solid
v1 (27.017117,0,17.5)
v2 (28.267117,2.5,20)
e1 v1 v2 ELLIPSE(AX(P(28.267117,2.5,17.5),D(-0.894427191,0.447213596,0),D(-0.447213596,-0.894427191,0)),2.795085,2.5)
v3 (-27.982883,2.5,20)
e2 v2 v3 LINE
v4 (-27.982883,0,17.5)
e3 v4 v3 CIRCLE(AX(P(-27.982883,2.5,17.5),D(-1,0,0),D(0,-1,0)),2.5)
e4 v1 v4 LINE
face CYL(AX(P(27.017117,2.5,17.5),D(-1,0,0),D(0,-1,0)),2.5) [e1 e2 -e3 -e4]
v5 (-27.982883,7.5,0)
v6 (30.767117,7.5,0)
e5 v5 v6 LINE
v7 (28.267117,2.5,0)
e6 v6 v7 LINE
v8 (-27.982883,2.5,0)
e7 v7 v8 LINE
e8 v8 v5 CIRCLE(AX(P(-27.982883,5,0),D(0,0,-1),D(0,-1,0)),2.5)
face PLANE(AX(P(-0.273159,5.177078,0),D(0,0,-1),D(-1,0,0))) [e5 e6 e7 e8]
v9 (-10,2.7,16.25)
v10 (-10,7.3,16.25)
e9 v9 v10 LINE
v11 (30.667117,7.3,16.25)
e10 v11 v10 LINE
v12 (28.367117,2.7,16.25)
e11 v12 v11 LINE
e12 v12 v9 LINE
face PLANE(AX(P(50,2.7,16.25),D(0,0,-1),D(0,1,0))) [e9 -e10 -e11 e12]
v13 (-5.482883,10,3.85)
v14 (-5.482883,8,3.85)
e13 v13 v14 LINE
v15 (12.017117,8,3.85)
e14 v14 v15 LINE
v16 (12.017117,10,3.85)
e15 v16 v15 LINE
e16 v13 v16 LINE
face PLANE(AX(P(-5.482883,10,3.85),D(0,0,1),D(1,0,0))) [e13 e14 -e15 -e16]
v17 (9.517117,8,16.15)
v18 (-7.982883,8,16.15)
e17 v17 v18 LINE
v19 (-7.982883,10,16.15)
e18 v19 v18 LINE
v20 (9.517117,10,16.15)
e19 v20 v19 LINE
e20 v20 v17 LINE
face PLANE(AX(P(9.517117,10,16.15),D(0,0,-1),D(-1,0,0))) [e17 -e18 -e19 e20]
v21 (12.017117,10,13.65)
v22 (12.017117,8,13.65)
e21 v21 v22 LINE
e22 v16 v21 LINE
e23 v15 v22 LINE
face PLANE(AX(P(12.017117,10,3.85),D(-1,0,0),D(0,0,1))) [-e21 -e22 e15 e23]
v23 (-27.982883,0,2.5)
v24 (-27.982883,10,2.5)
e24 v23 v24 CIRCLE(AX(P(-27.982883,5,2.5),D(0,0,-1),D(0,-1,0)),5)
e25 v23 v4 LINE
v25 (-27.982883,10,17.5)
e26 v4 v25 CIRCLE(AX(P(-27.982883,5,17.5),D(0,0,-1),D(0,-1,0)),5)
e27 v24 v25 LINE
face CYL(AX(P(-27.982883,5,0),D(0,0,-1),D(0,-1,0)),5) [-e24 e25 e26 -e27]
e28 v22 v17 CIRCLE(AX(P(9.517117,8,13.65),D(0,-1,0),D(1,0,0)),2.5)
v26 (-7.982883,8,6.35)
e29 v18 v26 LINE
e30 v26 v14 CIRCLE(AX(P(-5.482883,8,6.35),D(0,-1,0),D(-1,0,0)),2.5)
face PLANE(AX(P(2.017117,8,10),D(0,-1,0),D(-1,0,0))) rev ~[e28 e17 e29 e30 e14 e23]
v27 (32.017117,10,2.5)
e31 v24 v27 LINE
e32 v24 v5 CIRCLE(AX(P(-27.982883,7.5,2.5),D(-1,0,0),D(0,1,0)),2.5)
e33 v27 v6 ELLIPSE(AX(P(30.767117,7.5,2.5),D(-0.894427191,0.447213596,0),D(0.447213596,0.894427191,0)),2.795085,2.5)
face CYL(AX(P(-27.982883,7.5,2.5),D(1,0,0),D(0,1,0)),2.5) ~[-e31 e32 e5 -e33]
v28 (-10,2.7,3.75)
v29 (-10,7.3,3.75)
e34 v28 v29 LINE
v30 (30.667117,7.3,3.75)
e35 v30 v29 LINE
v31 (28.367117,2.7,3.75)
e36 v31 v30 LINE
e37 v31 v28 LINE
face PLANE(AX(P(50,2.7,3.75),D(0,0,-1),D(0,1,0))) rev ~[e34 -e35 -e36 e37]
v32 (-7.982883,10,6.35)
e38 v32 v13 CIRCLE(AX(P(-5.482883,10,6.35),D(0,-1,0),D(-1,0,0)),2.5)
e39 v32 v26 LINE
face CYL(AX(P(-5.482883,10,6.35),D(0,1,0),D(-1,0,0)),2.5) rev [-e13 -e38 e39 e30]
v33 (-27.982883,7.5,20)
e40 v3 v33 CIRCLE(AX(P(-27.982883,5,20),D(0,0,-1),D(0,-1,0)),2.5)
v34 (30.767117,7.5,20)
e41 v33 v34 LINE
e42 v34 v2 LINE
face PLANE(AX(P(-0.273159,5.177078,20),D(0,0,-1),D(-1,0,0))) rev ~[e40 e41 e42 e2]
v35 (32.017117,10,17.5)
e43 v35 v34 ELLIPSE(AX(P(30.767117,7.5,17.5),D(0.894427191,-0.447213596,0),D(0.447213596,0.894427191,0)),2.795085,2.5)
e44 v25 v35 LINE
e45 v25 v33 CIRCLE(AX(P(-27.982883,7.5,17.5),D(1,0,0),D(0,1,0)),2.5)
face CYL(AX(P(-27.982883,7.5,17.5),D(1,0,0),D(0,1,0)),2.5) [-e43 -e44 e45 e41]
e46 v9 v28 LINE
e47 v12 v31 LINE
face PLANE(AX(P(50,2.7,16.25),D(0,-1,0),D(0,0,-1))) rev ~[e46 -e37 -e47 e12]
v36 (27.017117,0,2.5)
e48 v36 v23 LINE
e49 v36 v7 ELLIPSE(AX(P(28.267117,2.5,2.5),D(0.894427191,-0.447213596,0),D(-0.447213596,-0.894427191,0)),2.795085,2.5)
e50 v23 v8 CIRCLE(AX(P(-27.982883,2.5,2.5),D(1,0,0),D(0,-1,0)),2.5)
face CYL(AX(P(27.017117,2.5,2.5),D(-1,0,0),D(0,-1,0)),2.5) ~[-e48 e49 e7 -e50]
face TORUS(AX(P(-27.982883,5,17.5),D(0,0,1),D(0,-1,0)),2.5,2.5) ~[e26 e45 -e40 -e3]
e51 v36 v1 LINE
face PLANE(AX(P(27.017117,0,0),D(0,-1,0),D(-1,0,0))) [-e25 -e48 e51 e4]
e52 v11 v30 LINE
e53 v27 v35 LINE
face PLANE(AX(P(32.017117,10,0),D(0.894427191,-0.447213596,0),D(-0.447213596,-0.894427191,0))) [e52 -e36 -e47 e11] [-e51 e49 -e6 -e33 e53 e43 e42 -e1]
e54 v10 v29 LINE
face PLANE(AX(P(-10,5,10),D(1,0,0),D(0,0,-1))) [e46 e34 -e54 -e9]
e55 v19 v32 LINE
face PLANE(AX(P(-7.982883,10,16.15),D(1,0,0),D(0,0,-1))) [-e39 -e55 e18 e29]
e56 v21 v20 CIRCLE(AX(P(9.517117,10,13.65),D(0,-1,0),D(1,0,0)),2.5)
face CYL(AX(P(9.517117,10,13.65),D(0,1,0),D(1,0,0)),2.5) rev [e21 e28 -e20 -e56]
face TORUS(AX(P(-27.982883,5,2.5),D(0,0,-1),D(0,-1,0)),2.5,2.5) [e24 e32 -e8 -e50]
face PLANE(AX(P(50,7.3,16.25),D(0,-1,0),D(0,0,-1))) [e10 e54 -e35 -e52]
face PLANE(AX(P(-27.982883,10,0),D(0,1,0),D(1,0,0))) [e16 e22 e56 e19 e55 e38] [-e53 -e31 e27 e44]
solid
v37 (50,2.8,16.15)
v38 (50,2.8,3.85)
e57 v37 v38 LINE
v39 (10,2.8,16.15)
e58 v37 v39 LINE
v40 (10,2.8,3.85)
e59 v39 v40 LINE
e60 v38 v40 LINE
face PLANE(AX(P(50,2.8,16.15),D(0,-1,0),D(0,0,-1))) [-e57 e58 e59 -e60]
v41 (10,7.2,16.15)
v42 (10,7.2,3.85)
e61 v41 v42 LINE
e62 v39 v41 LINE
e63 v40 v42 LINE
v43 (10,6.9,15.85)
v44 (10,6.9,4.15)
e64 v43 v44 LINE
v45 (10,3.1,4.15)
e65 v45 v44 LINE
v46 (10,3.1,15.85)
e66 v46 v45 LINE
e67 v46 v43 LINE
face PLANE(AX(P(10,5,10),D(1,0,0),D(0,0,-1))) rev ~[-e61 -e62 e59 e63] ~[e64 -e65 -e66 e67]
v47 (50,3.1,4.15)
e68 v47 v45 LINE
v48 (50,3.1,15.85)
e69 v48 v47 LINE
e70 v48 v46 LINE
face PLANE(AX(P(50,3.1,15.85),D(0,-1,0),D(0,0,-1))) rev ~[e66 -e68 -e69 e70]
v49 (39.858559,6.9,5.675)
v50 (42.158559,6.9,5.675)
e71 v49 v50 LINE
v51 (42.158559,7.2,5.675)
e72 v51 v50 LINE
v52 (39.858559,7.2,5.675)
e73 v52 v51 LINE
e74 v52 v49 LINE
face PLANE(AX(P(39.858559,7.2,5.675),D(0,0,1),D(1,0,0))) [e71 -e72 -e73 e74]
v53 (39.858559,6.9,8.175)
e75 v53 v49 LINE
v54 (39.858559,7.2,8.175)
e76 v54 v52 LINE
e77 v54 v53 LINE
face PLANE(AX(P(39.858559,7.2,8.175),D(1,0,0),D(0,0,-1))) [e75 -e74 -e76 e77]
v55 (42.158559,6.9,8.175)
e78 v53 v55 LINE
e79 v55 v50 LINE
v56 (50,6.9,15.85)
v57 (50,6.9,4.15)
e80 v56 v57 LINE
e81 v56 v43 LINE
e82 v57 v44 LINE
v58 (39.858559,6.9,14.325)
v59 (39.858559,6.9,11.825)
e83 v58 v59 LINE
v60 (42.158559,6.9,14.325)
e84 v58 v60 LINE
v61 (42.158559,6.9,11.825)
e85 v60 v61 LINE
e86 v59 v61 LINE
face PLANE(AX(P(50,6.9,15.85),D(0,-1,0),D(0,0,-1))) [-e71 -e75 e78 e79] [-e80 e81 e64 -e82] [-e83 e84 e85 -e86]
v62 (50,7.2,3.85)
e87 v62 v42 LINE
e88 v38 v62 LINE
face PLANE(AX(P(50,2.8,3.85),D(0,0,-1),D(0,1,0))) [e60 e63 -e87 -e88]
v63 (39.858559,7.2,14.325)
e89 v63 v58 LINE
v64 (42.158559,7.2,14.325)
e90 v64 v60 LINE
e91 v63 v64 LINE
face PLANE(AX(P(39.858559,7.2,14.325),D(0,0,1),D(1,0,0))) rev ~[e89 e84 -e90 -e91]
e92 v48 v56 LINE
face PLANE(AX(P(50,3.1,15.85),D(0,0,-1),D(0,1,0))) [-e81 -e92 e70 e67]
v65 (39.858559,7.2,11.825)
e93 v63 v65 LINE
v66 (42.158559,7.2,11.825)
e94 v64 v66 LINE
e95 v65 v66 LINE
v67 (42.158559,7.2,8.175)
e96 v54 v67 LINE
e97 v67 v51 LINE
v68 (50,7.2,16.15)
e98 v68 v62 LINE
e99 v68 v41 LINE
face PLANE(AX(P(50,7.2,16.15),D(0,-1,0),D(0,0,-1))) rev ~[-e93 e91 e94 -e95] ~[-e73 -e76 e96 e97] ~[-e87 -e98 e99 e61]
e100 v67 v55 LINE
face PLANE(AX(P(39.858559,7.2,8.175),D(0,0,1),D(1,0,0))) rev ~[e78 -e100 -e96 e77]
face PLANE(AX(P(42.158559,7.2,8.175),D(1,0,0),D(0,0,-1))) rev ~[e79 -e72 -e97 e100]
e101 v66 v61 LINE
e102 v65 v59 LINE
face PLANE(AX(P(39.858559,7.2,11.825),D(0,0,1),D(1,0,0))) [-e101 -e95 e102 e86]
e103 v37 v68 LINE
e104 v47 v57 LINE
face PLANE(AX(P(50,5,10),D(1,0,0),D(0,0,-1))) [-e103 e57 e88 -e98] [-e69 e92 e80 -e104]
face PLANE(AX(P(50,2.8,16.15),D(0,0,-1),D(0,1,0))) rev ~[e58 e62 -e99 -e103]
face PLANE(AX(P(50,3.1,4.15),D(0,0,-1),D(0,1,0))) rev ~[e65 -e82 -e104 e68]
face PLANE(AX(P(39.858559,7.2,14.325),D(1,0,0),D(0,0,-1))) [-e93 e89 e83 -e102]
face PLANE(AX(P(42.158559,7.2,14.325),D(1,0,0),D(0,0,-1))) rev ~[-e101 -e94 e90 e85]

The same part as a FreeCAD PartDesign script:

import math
import FreeCAD as App
import Part
import Sketcher

V = App.Vector
Q = App.Units.Quantity


def edges_at(feature, points):
    """Names of the edges that pass closest to the given points."""
    edges = feature.Shape.Edges
    near = lambda p: min(range(len(edges)), key=lambda i: edges[i].distToShape(Part.Vertex(*p))[0])
    return sorted({f"Edge{near(p) + 1}" for p in points})

doc = App.newDocument("Part")
body = doc.addObject("PartDesign::Body", "Body")

# Sketch on XY plane
sketch1 = body.newObject("Sketcher::SketchObject", "Sketch")
sketch1.AttachmentSupport = (doc.getObject("XY_Plane"), [""])
sketch1.MapMode = "FlatFace"
sketch1.addGeometry(Part.LineSegment(V(32, 10, 0), V(-28, 10, 0)), False)
sketch1.addGeometry(Part.ArcOfCircle(Part.Circle(V(-28, 5, 0), V(0, 0, 1), 5), math.radians(90), math.radians(270)), False)
sketch1.addGeometry(Part.LineSegment(V(-28, 0, 0), V(27, 0, 0)), False)
sketch1.addGeometry(Part.LineSegment(V(27, 0, 0), V(32, 10, 0)), False)
sketch1.addConstraint(Sketcher.Constraint("Tangent", 0, 2, 1, 1))
sketch1.addConstraint(Sketcher.Constraint("Tangent", 1, 2, 2, 1))
sketch1.addConstraint(Sketcher.Constraint("Coincident", 2, 2, 3, 1))
sketch1.addConstraint(Sketcher.Constraint("Coincident", 3, 2, 0, 1))
sketch1.addConstraint(Sketcher.Constraint("Horizontal", 0))
sketch1.addConstraint(Sketcher.Constraint("Horizontal", 2))
sketch1.addConstraint(Sketcher.Constraint("PointOnObject", 1, 2, -1))
sketch1.addConstraint(Sketcher.Constraint("Radius", 1, Q("5 mm")))
sketch1.addConstraint(Sketcher.Constraint("DistanceX", 0, 2, 0, 1, Q("60 mm")))
sketch1.addConstraint(Sketcher.Constraint("DistanceX", 2, 1, 2, 2, Q("55 mm")))
sketch1.addConstraint(Sketcher.Constraint("DistanceX", 1, 3, -1, 1, Q("27.982883 mm")))
pad1 = body.newObject("PartDesign::Pad", "Pad")
pad1.Profile = sketch1
pad1.Length = 20

# Sketch on YZ plane
sketch2 = body.newObject("Sketcher::SketchObject", "Sketch001")
sketch2.AttachmentSupport = (doc.getObject("YZ_Plane"), [""])
sketch2.MapMode = "FlatFace"
sketch2.AttachmentOffset = App.Placement(V(0, 0, 50), App.Rotation())
sketch2.addGeometry(Part.LineSegment(V(7.3, 16.2, 0), V(2.7, 16.2, 0)), False)
sketch2.addGeometry(Part.LineSegment(V(2.7, 16.2, 0), V(2.7, 3.8, 0)), False)
sketch2.addGeometry(Part.LineSegment(V(2.7, 3.8, 0), V(7.3, 3.8, 0)), False)
sketch2.addGeometry(Part.LineSegment(V(7.3, 3.8, 0), V(7.3, 16.2, 0)), False)
sketch2.addConstraint(Sketcher.Constraint("Coincident", 0, 2, 1, 1))
sketch2.addConstraint(Sketcher.Constraint("Coincident", 1, 2, 2, 1))
sketch2.addConstraint(Sketcher.Constraint("Coincident", 2, 2, 3, 1))
sketch2.addConstraint(Sketcher.Constraint("Coincident", 3, 2, 0, 1))
sketch2.addConstraint(Sketcher.Constraint("Horizontal", 0))
sketch2.addConstraint(Sketcher.Constraint("Vertical", 1))
sketch2.addConstraint(Sketcher.Constraint("Horizontal", 2))
sketch2.addConstraint(Sketcher.Constraint("Vertical", 3))
sketch2.addConstraint(Sketcher.Constraint("DistanceX", 0, 2, 0, 1, Q("4.6 mm")))
sketch2.addConstraint(Sketcher.Constraint("DistanceY", 1, 2, 1, 1, Q("12.5 mm")))
sketch2.addConstraint(Sketcher.Constraint("DistanceX", -1, 1, 0, 2, Q("2.7 mm")))
sketch2.addConstraint(Sketcher.Constraint("DistanceY", -1, 1, 0, 2, Q("16.25 mm")))
pocket1 = body.newObject("PartDesign::Pocket", "Pocket")
pocket1.Profile = sketch2
pocket1.Length = 60

# Sketch on XZ plane
sketch3 = body.newObject("Sketcher::SketchObject", "Sketch002")
sketch3.AttachmentSupport = (doc.getObject("XZ_Plane"), [""])
sketch3.MapMode = "FlatFace"
sketch3.AttachmentOffset = App.Placement(V(0, 0, -10), App.Rotation())
sketch3.addGeometry(Part.LineSegment(V(12, 3.9, 0), V(-5.5, 3.9, 0)), False)
sketch3.addGeometry(Part.ArcOfCircle(Part.Circle(V(-5.5, 6.3, 0), V(0, 0, 1), 2.5), math.radians(180), math.radians(270)), False)
sketch3.addGeometry(Part.LineSegment(V(-8, 6.3, 0), V(-8, 16.1, 0)), False)
sketch3.addGeometry(Part.LineSegment(V(-8, 16.1, 0), V(9.5, 16.1, 0)), False)
sketch3.addGeometry(Part.ArcOfCircle(Part.Circle(V(9.5, 13.7, 0), V(0, 0, 1), 2.5), math.radians(0), math.radians(90)), False)
sketch3.addGeometry(Part.LineSegment(V(12, 13.7, 0), V(12, 3.9, 0)), False)
sketch3.addConstraint(Sketcher.Constraint("Tangent", 0, 2, 1, 2))
sketch3.addConstraint(Sketcher.Constraint("Tangent", 1, 1, 2, 1))
sketch3.addConstraint(Sketcher.Constraint("Coincident", 2, 2, 3, 1))
sketch3.addConstraint(Sketcher.Constraint("Tangent", 3, 2, 4, 2))
sketch3.addConstraint(Sketcher.Constraint("Tangent", 4, 1, 5, 1))
sketch3.addConstraint(Sketcher.Constraint("Coincident", 5, 2, 0, 1))
sketch3.addConstraint(Sketcher.Constraint("Horizontal", 0))
sketch3.addConstraint(Sketcher.Constraint("Vertical", 2))
sketch3.addConstraint(Sketcher.Constraint("Horizontal", 3))
sketch3.addConstraint(Sketcher.Constraint("Vertical", 5))
sketch3.addConstraint(Sketcher.Constraint("Equal", 1, 4))
sketch3.addConstraint(Sketcher.Constraint("Radius", 1, Q("2.5 mm")))
sketch3.addConstraint(Sketcher.Constraint("DistanceX", 0, 2, 0, 1, Q("17.5 mm")))
sketch3.addConstraint(Sketcher.Constraint("DistanceY", 2, 1, 2, 2, Q("9.8 mm")))
sketch3.addConstraint(Sketcher.Constraint("DistanceY", -1, 1, 1, 3, Q("6.35 mm")))
sketch3.addConstraint(Sketcher.Constraint("DistanceX", 1, 3, -1, 1, Q("5.482883 mm")))
pocket2 = body.newObject("PartDesign::Pocket", "Pocket001")
pocket2.Profile = sketch3
pocket2.Length = 2
pocket2.Reversed = True
doc.recompute()

fillet = body.newObject("PartDesign::Fillet", "Fillet")
fillet.Base = (pocket2, edges_at(pocket2, [(2.017, 10, 20), (-32.983, 5, 20), (-0.483, 0, 20)]))
fillet.Radius = 2.5
doc.recompute()

fillet2 = body.newObject("PartDesign::Fillet", "Fillet001")
fillet2.Base = (fillet, edges_at(fillet, [(2.017, 10, 0), (-0.483, 0, 0), (-32.983, 5, 0)]))
fillet2.Radius = 2.5
body2 = doc.addObject("PartDesign::Body", "Body001")

# Sketch on YZ plane
sketch4 = body2.newObject("Sketcher::SketchObject", "Sketch003")
sketch4.AttachmentSupport = (doc.getObject("YZ_Plane001"), [""])
sketch4.MapMode = "FlatFace"
sketch4.AttachmentOffset = App.Placement(V(0, 0, 50), App.Rotation())
sketch4.addGeometry(Part.LineSegment(V(7.2, 16.1, 0), V(2.8, 16.1, 0)), False)
sketch4.addGeometry(Part.LineSegment(V(2.8, 16.1, 0), V(2.8, 3.9, 0)), False)
sketch4.addGeometry(Part.LineSegment(V(2.8, 3.9, 0), V(7.2, 3.9, 0)), False)
sketch4.addGeometry(Part.LineSegment(V(7.2, 3.9, 0), V(7.2, 16.1, 0)), False)
sketch4.addGeometry(Part.LineSegment(V(3.1, 4.2, 0), V(3.1, 15.8, 0)), False)
sketch4.addGeometry(Part.LineSegment(V(3.1, 15.8, 0), V(6.9, 15.8, 0)), False)
sketch4.addGeometry(Part.LineSegment(V(6.9, 15.8, 0), V(6.9, 4.2, 0)), False)
sketch4.addGeometry(Part.LineSegment(V(6.9, 4.2, 0), V(3.1, 4.2, 0)), False)
sketch4.addConstraint(Sketcher.Constraint("Coincident", 0, 2, 1, 1))
sketch4.addConstraint(Sketcher.Constraint("Coincident", 1, 2, 2, 1))
sketch4.addConstraint(Sketcher.Constraint("Coincident", 2, 2, 3, 1))
sketch4.addConstraint(Sketcher.Constraint("Coincident", 3, 2, 0, 1))
sketch4.addConstraint(Sketcher.Constraint("Coincident", 4, 2, 5, 1))
sketch4.addConstraint(Sketcher.Constraint("Coincident", 5, 2, 6, 1))
sketch4.addConstraint(Sketcher.Constraint("Coincident", 6, 2, 7, 1))
sketch4.addConstraint(Sketcher.Constraint("Coincident", 7, 2, 4, 1))
sketch4.addConstraint(Sketcher.Constraint("Horizontal", 0))
sketch4.addConstraint(Sketcher.Constraint("Vertical", 1))
sketch4.addConstraint(Sketcher.Constraint("Horizontal", 2))
sketch4.addConstraint(Sketcher.Constraint("Vertical", 3))
sketch4.addConstraint(Sketcher.Constraint("Vertical", 4))
sketch4.addConstraint(Sketcher.Constraint("Horizontal", 5))
sketch4.addConstraint(Sketcher.Constraint("Vertical", 6))
sketch4.addConstraint(Sketcher.Constraint("Horizontal", 7))
sketch4.addConstraint(Sketcher.Constraint("DistanceX", 0, 2, 0, 1, Q("4.4 mm")))
sketch4.addConstraint(Sketcher.Constraint("DistanceX", 5, 1, 5, 2, Q("3.8 mm")))
sketch4.addConstraint(Sketcher.Constraint("DistanceY", 1, 2, 1, 1, Q("12.3 mm")))
sketch4.addConstraint(Sketcher.Constraint("DistanceY", 4, 1, 4, 2, Q("11.7 mm")))
sketch4.addConstraint(Sketcher.Constraint("DistanceY", 1, 2, 4, 2, Q("12 mm")))
sketch4.addConstraint(Sketcher.Constraint("DistanceX", -1, 1, 0, 2, Q("2.8 mm")))
sketch4.addConstraint(Sketcher.Constraint("DistanceX", -1, 1, 4, 2, Q("3.1 mm")))
sketch4.addConstraint(Sketcher.Constraint("DistanceY", -1, 1, 0, 2, Q("16.15 mm")))
pad2 = body2.newObject("PartDesign::Pad", "Pad001")
pad2.Profile = sketch4
pad2.Length = 40
pad2.Reversed = True

# Sketch on XZ plane
sketch5 = body2.newObject("Sketcher::SketchObject", "Sketch004")
sketch5.AttachmentSupport = (doc.getObject("XZ_Plane001"), [""])
sketch5.MapMode = "FlatFace"
sketch5.AttachmentOffset = App.Placement(V(0, 0, -7.2), App.Rotation())
sketch5.addGeometry(Part.LineSegment(V(39.9, 5.7, 0), V(39.9, 8.2, 0)), False)
sketch5.addGeometry(Part.LineSegment(V(39.9, 8.2, 0), V(42.2, 8.2, 0)), False)
sketch5.addGeometry(Part.LineSegment(V(42.2, 8.2, 0), V(42.2, 5.7, 0)), False)
sketch5.addGeometry(Part.LineSegment(V(42.2, 5.7, 0), V(39.9, 5.7, 0)), False)
sketch5.addGeometry(Part.LineSegment(V(39.9, 11.8, 0), V(39.9, 14.3, 0)), False)
sketch5.addGeometry(Part.LineSegment(V(39.9, 14.3, 0), V(42.2, 14.3, 0)), False)
sketch5.addGeometry(Part.LineSegment(V(42.2, 14.3, 0), V(42.2, 11.8, 0)), False)
sketch5.addGeometry(Part.LineSegment(V(42.2, 11.8, 0), V(39.9, 11.8, 0)), False)
sketch5.addConstraint(Sketcher.Constraint("Coincident", 0, 2, 1, 1))
sketch5.addConstraint(Sketcher.Constraint("Coincident", 1, 2, 2, 1))
sketch5.addConstraint(Sketcher.Constraint("Coincident", 2, 2, 3, 1))
sketch5.addConstraint(Sketcher.Constraint("Coincident", 3, 2, 0, 1))
sketch5.addConstraint(Sketcher.Constraint("Coincident", 4, 2, 5, 1))
sketch5.addConstraint(Sketcher.Constraint("Coincident", 5, 2, 6, 1))
sketch5.addConstraint(Sketcher.Constraint("Coincident", 6, 2, 7, 1))
sketch5.addConstraint(Sketcher.Constraint("Coincident", 7, 2, 4, 1))
sketch5.addConstraint(Sketcher.Constraint("Vertical", 0))
sketch5.addConstraint(Sketcher.Constraint("Horizontal", 1))
sketch5.addConstraint(Sketcher.Constraint("Vertical", 2))
sketch5.addConstraint(Sketcher.Constraint("Horizontal", 3))
sketch5.addConstraint(Sketcher.Constraint("Vertical", 4))
sketch5.addConstraint(Sketcher.Constraint("Horizontal", 5))
sketch5.addConstraint(Sketcher.Constraint("Vertical", 6))
sketch5.addConstraint(Sketcher.Constraint("Horizontal", 7))
sketch5.addConstraint(Sketcher.Constraint("Vertical", 3, 2, 4, 2))
sketch5.addConstraint(Sketcher.Constraint("Vertical", 2, 2, 5, 2))
sketch5.addConstraint(Sketcher.Constraint("Equal", 2, 4))
sketch5.addConstraint(Sketcher.Constraint("DistanceX", 1, 1, 1, 2, Q("2.3 mm")))
sketch5.addConstraint(Sketcher.Constraint("DistanceY", 0, 1, 0, 2, Q("2.5 mm")))
sketch5.addConstraint(Sketcher.Constraint("DistanceY", 0, 2, 4, 2, Q("6.15 mm")))
sketch5.addConstraint(Sketcher.Constraint("DistanceY", -1, 1, 0, 2, Q("8.175 mm")))
sketch5.addConstraint(Sketcher.Constraint("DistanceX", -1, 1, 0, 2, Q("39.858559 mm")))
pocket3 = body2.newObject("PartDesign::Pocket", "Pocket002")
pocket3.Profile = sketch5
pocket3.Length = 0.3
pocket3.Reversed = True

doc.recompute()
